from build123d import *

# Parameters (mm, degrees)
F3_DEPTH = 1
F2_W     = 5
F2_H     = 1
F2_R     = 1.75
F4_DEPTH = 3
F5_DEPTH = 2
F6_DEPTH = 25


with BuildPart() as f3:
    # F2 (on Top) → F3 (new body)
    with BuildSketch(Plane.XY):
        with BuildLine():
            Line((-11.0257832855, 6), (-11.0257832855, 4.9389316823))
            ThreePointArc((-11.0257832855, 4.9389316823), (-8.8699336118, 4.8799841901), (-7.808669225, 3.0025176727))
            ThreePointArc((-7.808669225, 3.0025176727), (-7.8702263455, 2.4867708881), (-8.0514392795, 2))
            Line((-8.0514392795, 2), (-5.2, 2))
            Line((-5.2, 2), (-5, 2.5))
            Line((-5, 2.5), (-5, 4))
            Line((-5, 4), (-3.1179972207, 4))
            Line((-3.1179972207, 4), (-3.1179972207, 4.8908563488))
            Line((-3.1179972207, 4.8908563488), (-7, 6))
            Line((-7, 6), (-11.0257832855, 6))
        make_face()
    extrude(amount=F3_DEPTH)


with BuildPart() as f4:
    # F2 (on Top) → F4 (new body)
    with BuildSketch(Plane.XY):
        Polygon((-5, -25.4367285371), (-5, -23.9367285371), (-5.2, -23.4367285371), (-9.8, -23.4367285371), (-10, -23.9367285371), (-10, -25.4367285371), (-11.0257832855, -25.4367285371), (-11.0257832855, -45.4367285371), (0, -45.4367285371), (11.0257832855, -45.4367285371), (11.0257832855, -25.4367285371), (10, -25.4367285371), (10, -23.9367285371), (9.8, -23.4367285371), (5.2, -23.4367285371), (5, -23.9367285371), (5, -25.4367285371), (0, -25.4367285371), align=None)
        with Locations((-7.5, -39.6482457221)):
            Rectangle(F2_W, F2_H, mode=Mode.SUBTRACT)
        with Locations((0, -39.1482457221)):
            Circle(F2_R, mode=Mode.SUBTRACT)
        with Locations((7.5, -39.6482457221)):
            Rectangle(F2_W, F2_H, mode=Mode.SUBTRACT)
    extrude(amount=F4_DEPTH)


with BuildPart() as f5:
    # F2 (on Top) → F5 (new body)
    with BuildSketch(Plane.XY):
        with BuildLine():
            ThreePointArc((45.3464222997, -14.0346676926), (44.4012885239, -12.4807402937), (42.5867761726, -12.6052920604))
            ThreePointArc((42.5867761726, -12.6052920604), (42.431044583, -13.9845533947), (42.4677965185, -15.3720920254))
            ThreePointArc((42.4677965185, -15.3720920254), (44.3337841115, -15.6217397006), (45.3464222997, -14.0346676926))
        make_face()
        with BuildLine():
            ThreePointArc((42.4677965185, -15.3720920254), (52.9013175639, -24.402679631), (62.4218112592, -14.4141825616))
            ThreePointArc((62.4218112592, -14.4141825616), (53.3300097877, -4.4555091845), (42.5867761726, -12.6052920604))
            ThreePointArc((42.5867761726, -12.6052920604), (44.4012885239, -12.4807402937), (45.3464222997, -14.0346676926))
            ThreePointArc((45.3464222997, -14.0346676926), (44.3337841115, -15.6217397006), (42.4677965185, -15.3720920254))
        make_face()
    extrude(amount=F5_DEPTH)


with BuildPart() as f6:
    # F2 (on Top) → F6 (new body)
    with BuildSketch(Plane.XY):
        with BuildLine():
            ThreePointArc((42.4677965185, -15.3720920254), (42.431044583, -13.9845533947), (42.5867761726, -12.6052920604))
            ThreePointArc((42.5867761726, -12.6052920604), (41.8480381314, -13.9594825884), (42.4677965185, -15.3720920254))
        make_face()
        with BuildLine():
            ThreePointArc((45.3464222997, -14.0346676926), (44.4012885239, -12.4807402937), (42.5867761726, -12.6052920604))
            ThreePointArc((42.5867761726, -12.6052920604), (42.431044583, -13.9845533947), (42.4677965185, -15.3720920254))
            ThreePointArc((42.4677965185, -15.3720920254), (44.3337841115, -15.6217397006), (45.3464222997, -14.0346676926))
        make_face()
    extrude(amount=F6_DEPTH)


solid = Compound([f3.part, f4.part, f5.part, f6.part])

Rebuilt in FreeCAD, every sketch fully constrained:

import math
import FreeCAD as App
import Part
import Sketcher
from FreeCAD import Vector

doc = App.newDocument("Part")
body = doc.addObject("PartDesign::Body", "Body")

# Sketch on XY plane
sketch1 = body.newObject("Sketcher::SketchObject", "Sketch")
sketch1.AttachmentSupport = (doc.getObject("XY_Plane"), [""])
sketch1.MapMode = "FlatFace"
sketch1.addGeometry([
    Part.LineSegment(Vector(-11.025783, 6, 0), Vector(-11.025783, 4.938932, 0)),  # 0
    Part.ArcOfCircle(Part.Circle(Vector(-10, 3.002518, 0), Vector(0, 0, 1), 2.191331), math.radians(0), math.radians(117.911666)),  # 1
    Part.ArcOfCircle(Part.Circle(Vector(-10, 3.002518, 0), Vector(0, 0, 1), 2.191331), math.radians(-27.225429), math.radians(0)),  # 2
    Part.LineSegment(Vector(-8.051439, 2, 0), Vector(-5.2, 2, 0)),  # 3
    Part.LineSegment(Vector(-5.2, 2, 0), Vector(-5, 2.5, 0)),  # 4
    Part.LineSegment(Vector(-5, 2.5, 0), Vector(-5, 4, 0)),  # 5
    Part.LineSegment(Vector(-5, 4, 0), Vector(-3.117997, 4, 0)),  # 6
    Part.LineSegment(Vector(-3.117997, 4, 0), Vector(-3.117997, 4.890856, 0)),  # 7
    Part.LineSegment(Vector(-3.117997, 4.890856, 0), Vector(-7, 6, 0)),  # 8
    Part.LineSegment(Vector(-7, 6, 0), Vector(-11.025783, 6, 0)),  # 9
], False)
sketch1.addConstraint([
    Sketcher.Constraint("Coincident", 0, 2, 1, 2),
    Sketcher.Constraint("Tangent", 1, 1, 2, 2),
    Sketcher.Constraint("Coincident", 2, 1, 3, 1),
    Sketcher.Constraint("Coincident", 3, 2, 4, 1),
    Sketcher.Constraint("Coincident", 4, 2, 5, 1),
    Sketcher.Constraint("Coincident", 5, 2, 6, 1),
    Sketcher.Constraint("Coincident", 6, 2, 7, 1),
    Sketcher.Constraint("Coincident", 7, 2, 8, 1),
    Sketcher.Constraint("Coincident", 8, 2, 9, 1),
    Sketcher.Constraint("Coincident", 9, 2, 0, 1),
    Sketcher.Constraint("Vertical", 0),
    Sketcher.Constraint("Horizontal", 3),
    Sketcher.Constraint("Vertical", 5),
    Sketcher.Constraint("Horizontal", 6),
    Sketcher.Constraint("Vertical", 7),
    Sketcher.Constraint("Horizontal", 9),
    Sketcher.Constraint("Equal", 1, 2),
    Sketcher.Constraint("Horizontal", 2, 3, 1, 1),
    Sketcher.Constraint("DistanceY", 5, 1, 5, 2, 1.5),
    Sketcher.Constraint("DistanceX", 1, 3, -1, 1, 10.0),
    Sketcher.Constraint("DistanceY", -1, 1, 2, 1, 2.0),
    Sketcher.Constraint("DistanceX", 4, 2, -1, 1, 5.0),
    Sketcher.Constraint("DistanceY", -1, 1, 5, 2, 4.0),
    Sketcher.Constraint("DistanceX", 8, 2, -1, 1, 7.0),
    Sketcher.Constraint("DistanceY", -1, 1, 8, 2, 6.0),
    Sketcher.Constraint("DistanceX", 3, 2, -1, 1, 5.2),
    Sketcher.Constraint("Radius", 1, 2.191331),
    Sketcher.Constraint("DistanceX", 3, 1, 3, 2, 2.851439),
    Sketcher.Constraint("DistanceY", 0, 2, 0, 1, 1.061068),
    Sketcher.Constraint("DistanceX", 6, 1, 6, 2, 1.882003),
    Sketcher.Constraint("DistanceY", 7, 1, 7, 2, 0.890856),
])
pad1 = body.newObject("PartDesign::Pad", "Pad")
pad1.Profile = sketch1
pad1.Length = 1
body2 = doc.addObject("PartDesign::Body", "Body001")

# Sketch on XY plane
sketch2 = body2.newObject("Sketcher::SketchObject", "Sketch001")
sketch2.AttachmentSupport = (doc.getObject("XY_Plane001"), [""])
sketch2.MapMode = "FlatFace"
sketch2.addGeometry([
    Part.LineSegment(Vector(-5, -25.436729, 0), Vector(-5, -23.936729, 0)),  # 0
    Part.LineSegment(Vector(-5, -23.936729, 0), Vector(-5.2, -23.436729, 0)),  # 1
    Part.LineSegment(Vector(-5.2, -23.436729, 0), Vector(-9.8, -23.436729, 0)),  # 2
    Part.LineSegment(Vector(-9.8, -23.436729, 0), Vector(-10, -23.936729, 0)),  # 3
    Part.LineSegment(Vector(-10, -23.936729, 0), Vector(-10, -25.436729, 0)),  # 4
    Part.LineSegment(Vector(-10, -25.436729, 0), Vector(-11.025783, -25.436729, 0)),  # 5
    Part.LineSegment(Vector(-11.025783, -25.436729, 0), Vector(-11.025783, -45.436729, 0)),  # 6
    Part.LineSegment(Vector(-11.025783, -45.436729, 0), Vector(11.025783, -45.436729, 0)),  # 7
    Part.LineSegment(Vector(11.025783, -45.436729, 0), Vector(11.025783, -25.436729, 0)),  # 8
    Part.LineSegment(Vector(11.025783, -25.436729, 0), Vector(10, -25.436729, 0)),  # 9
    Part.LineSegment(Vector(10, -25.436729, 0), Vector(10, -23.936729, 0)),  # 10
    Part.LineSegment(Vector(10, -23.936729, 0), Vector(9.8, -23.436729, 0)),  # 11
    Part.LineSegment(Vector(9.8, -23.436729, 0), Vector(5.2, -23.436729, 0)),  # 12
    Part.LineSegment(Vector(5.2, -23.436729, 0), Vector(5, -23.936729, 0)),  # 13
    Part.LineSegment(Vector(5, -23.936729, 0), Vector(5, -25.436729, 0)),  # 14
    Part.LineSegment(Vector(5, -25.436729, 0), Vector(-5, -25.436729, 0)),  # 15
    Part.LineSegment(Vector(-5, -40.148246, 0), Vector(-10, -40.148246, 0)),  # 16
    Part.LineSegment(Vector(-10, -40.148246, 0), Vector(-10, -39.148246, 0)),  # 17
    Part.LineSegment(Vector(-10, -39.148246, 0), Vector(-5, -39.148246, 0)),  # 18
    Part.LineSegment(Vector(-5, -39.148246, 0), Vector(-5, -40.148246, 0)),  # 19
    Part.LineSegment(Vector(10, -40.148246, 0), Vector(5, -40.148246, 0)),  # 20
    Part.LineSegment(Vector(5, -40.148246, 0), Vector(5, -39.148246, 0)),  # 21
    Part.LineSegment(Vector(5, -39.148246, 0), Vector(10, -39.148246, 0)),  # 22
    Part.LineSegment(Vector(10, -39.148246, 0), Vector(10, -40.148246, 0)),  # 23
    Part.Circle(Vector(0, -39.148246, 0), Vector(0, 0, 1), 1.75),  # 24
], False)
sketch2.addConstraint([
    Sketcher.Constraint("Coincident", 0, 2, 1, 1),
    Sketcher.Constraint("Coincident", 1, 2, 2, 1),
    Sketcher.Constraint("Coincident", 2, 2, 3, 1),
    Sketcher.Constraint("Coincident", 3, 2, 4, 1),
    Sketcher.Constraint("Coincident", 4, 2, 5, 1),
    Sketcher.Constraint("Coincident", 5, 2, 6, 1),
    Sketcher.Constraint("Coincident", 6, 2, 7, 1),
    Sketcher.Constraint("Coincident", 7, 2, 8, 1),
    Sketcher.Constraint("Coincident", 8, 2, 9, 1),
    Sketcher.Constraint("Coincident", 9, 2, 10, 1),
    Sketcher.Constraint("Coincident", 10, 2, 11, 1),
    Sketcher.Constraint("Coincident", 11, 2, 12, 1),
    Sketcher.Constraint("Coincident", 12, 2, 13, 1),
    Sketcher.Constraint("Coincident", 13, 2, 14, 1),
    Sketcher.Constraint("Coincident", 14, 2, 15, 1),
    Sketcher.Constraint("Coincident", 15, 2, 0, 1),
    Sketcher.Constraint("Coincident", 16, 2, 17, 1),
    Sketcher.Constraint("Coincident", 17, 2, 18, 1),
    Sketcher.Constraint("Coincident", 18, 2, 19, 1),
    Sketcher.Constraint("Coincident", 19, 2, 16, 1),
    Sketcher.Constraint("Coincident", 20, 2, 21, 1),
    Sketcher.Constraint("Coincident", 21, 2, 22, 1),
    Sketcher.Constraint("Coincident", 22, 2, 23, 1),
    Sketcher.Constraint("Coincident", 23, 2, 20, 1),
    Sketcher.Constraint("Vertical", 0),
    Sketcher.Constraint("Horizontal", 2),
    Sketcher.Constraint("Vertical", 4),
    Sketcher.Constraint("Horizontal", 5),
    Sketcher.Constraint("Vertical", 6),
    Sketcher.Constraint("Horizontal", 7),
    Sketcher.Constraint("Vertical", 8),
    Sketcher.Constraint("Horizontal", 9),
    Sketcher.Constraint("Vertical", 10),
    Sketcher.Constraint("Horizontal", 12),
    Sketcher.Constraint("Vertical", 14),
    Sketcher.Constraint("Horizontal", 15),
    Sketcher.Constraint("Horizontal", 16),
    Sketcher.Constraint("Vertical", 17),
    Sketcher.Constraint("Horizontal", 18),
    Sketcher.Constraint("Vertical", 19),
    Sketcher.Constraint("Horizontal", 20),
    Sketcher.Constraint("Vertical", 21),
    Sketcher.Constraint("Horizontal", 22),
    Sketcher.Constraint("Vertical", 23),
    Sketcher.Constraint("Symmetric", 5, 2, 8, 2, -2),
    Sketcher.Constraint("Symmetric", 3, 2, 10, 2, -2),
    Sketcher.Constraint("Symmetric", 2, 2, 11, 2, -2),
    Sketcher.Constraint("Symmetric", 0, 2, 13, 2, -2),
    Sketcher.Constraint("Symmetric", 19, 2, 20, 2, -2),
    Sketcher.Constraint("Symmetric", 17, 2, 22, 2, -2),
    Sketcher.Constraint("PointOnObject", 24, 3, -2),
    Sketcher.Constraint("Parallel", 1, 11),
    Sketcher.Constraint("Parallel", 3, 13),
    Sketcher.Constraint("Horizontal", 0, 2, 3, 2),
    Sketcher.Constraint("Horizontal", 9, 2, 14, 2),
    Sketcher.Constraint("Horizontal", 24, 3, 17, 2),
    Sketcher.Constraint("Vertical", 4, 2, 16, 2),
    Sketcher.Constraint("Vertical", 15, 2, 18, 2),
    Sketcher.Constraint("Diameter", 24, 3.5),
    Sketcher.Constraint("DistanceX", 15, 2, 15, 1, 10.0),
    Sketcher.Constraint("DistanceX", 16, 2, 16, 1, 5.0),
    Sketcher.Constraint("DistanceY", 6, 2, 6, 1, 20.0),
    Sketcher.Constraint("DistanceY", 17, 1, 17, 2, 1.0),
    Sketcher.Constraint("DistanceX", 2, 2, 2, 1, 4.6),
    Sketcher.Constraint("DistanceY", 0, 1, 0, 2, 1.5),
    Sketcher.Constraint("DistanceY", 4, 2, 2, 2, 2.0),
    Sketcher.Constraint("DistanceX", 5, 2, 5, 1, 1.025783),
    Sketcher.Constraint("DistanceY", 0, 2, -1, 1, 23.936729),
    Sketcher.Constraint("DistanceY", 24, 3, -1, 1, 39.148246),
])
pad2 = body2.newObject("PartDesign::Pad", "Pad001")
pad2.Profile = sketch2
pad2.Length = 3
body3 = doc.addObject("PartDesign::Body", "Body002")

# Sketch on XY plane
sketch3 = body3.newObject("Sketcher::SketchObject", "Sketch002")
sketch3.AttachmentSupport = (doc.getObject("XY_Plane002"), [""])
sketch3.MapMode = "FlatFace"
sketch3.addGeometry([
    Part.ArcOfCircle(Part.Circle(Vector(52.421811, -14.414183, 0), Vector(0, 0, 1), 10), math.radians(169.578451), math.radians(185.496845)),
    Part.ArcOfCircle(Part.Circle(Vector(52.421811, -14.414183, 0), Vector(0, 0, 1), 10), math.radians(-174.503155), math.radians(0)),
    Part.ArcOfCircle(Part.Circle(Vector(52.421811, -14.414183, 0), Vector(0, 0, 1), 10), math.radians(0), math.radians(169.578451)),
], False)
sketch3.addConstraint([
    Sketcher.Constraint("Tangent", 0, 2, 1, 1),
    Sketcher.Constraint("Tangent", 1, 2, 2, 1),
    Sketcher.Constraint("Tangent", 2, 2, 0, 1),
    Sketcher.Constraint("Horizontal", 2, 3, 1, 2),
    Sketcher.Constraint("Radius", 0, 10.0),
    Sketcher.Constraint("DistanceY", 0, 2, 2, 2, 2.7668),
    Sketcher.Constraint("DistanceX", -1, 1, 0, 3, 52.421811),
    Sketcher.Constraint("DistanceY", 0, 2, 1, 3, 0.957909),
    Sketcher.Constraint("DistanceY", 0, 3, -1, 1, 14.414183),
])
pad3 = body3.newObject("PartDesign::Pad", "Pad002")
pad3.Profile = sketch3
pad3.Length = 2
body4 = doc.addObject("PartDesign::Body", "Body003")

# Sketch on XY plane
sketch4 = body4.newObject("Sketcher::SketchObject", "Sketch003")
sketch4.AttachmentSupport = (doc.getObject("XY_Plane003"), [""])
sketch4.MapMode = "FlatFace"
sketch4.addGeometry([
    Part.ArcOfCircle(Part.Circle(Vector(43.596422, -14.034668, 0), Vector(0, 0, 1), 1.75), math.radians(125.23565), math.radians(360)),
    Part.ArcOfCircle(Part.Circle(Vector(43.596422, -14.034668, 0), Vector(0, 0, 1), 1.75), math.radians(0), math.radians(125.23565)),
], False)
sketch4.addConstraint([
    Sketcher.Constraint("Tangent", 0, 1, 1, 2),
    Sketcher.Constraint("Coincident", 1, 1, 0, 2),
    Sketcher.Constraint("Horizontal", 0, 3, 1, 1),
    Sketcher.Constraint("Radius", 0, 1.75),
    Sketcher.Constraint("DistanceX", -1, 1, 0, 3, 43.596422),
    Sketcher.Constraint("DistanceY", 0, 3, -1, 1, 14.034668),
    Sketcher.Constraint("DistanceX", -1, 1, 0, 1, 42.586776),
])
pad4 = body4.newObject("PartDesign::Pad", "Pad003")
pad4.Profile = sketch4
pad4.Length = 25

doc.recompute()
